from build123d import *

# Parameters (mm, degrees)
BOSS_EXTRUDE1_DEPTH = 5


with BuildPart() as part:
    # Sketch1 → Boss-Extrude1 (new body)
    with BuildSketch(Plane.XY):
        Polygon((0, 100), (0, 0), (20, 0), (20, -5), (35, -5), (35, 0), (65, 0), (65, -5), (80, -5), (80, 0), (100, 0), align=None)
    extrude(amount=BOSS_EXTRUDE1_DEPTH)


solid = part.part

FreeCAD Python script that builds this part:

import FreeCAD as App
import Part
import Sketcher
from FreeCAD import Vector
Q = App.Units.Quantity

doc = App.newDocument("Part")
body = doc.addObject("PartDesign::Body", "Body")

# Sketch on XY plane
sketch1 = body.newObject("Sketcher::SketchObject", "Sketch")
sketch1.AttachmentSupport = (doc.getObject("XY_Plane"), [""])
sketch1.MapMode = "FlatFace"
sketch1.addGeometry([
    Part.LineSegment(Vector(0, 100, 0), Vector(0, 0, 0)),  # 0
    Part.LineSegment(Vector(0, 0, 0), Vector(20, 0, 0)),  # 1
    Part.LineSegment(Vector(20, 0, 0), Vector(20, -5, 0)),  # 2
    Part.LineSegment(Vector(20, -5, 0), Vector(35, -5, 0)),  # 3
    Part.LineSegment(Vector(35, -5, 0), Vector(35, 0, 0)),  # 4
    Part.LineSegment(Vector(35, 0, 0), Vector(65, 0, 0)),  # 5
    Part.LineSegment(Vector(65, 0, 0), Vector(65, -5, 0)),  # 6
    Part.LineSegment(Vector(65, -5, 0), Vector(80, -5, 0)),  # 7
    Part.LineSegment(Vector(80, -5, 0), Vector(80, 0, 0)),  # 8
    Part.LineSegment(Vector(80, 0, 0), Vector(100, 0, 0)),  # 9
    Part.LineSegment(Vector(100, 0, 0), Vector(0, 100, 0)),  # 10
], False)
sketch1.addConstraint([
    Sketcher.Constraint("Coincident", 0, 2, 1, 1),
    Sketcher.Constraint("Coincident", 1, 2, 2, 1),
    Sketcher.Constraint("Coincident", 2, 2, 3, 1),
    Sketcher.Constraint("Coincident", 3, 2, 4, 1),
    Sketcher.Constraint("Coincident", 4, 2, 5, 1),
    Sketcher.Constraint("Coincident", 5, 2, 6, 1),
    Sketcher.Constraint("Coincident", 6, 2, 7, 1),
    Sketcher.Constraint("Coincident", 7, 2, 8, 1),
    Sketcher.Constraint("Coincident", 8, 2, 9, 1),
    Sketcher.Constraint("Coincident", 9, 2, 10, 1),
    Sketcher.Constraint("Coincident", 10, 2, 0, 1),
    Sketcher.Constraint("Vertical", 0),
    Sketcher.Constraint("Horizontal", 1),
    Sketcher.Constraint("Vertical", 2),
    Sketcher.Constraint("Horizontal", 3),
    Sketcher.Constraint("Vertical", 4),
    Sketcher.Constraint("Horizontal", 5),
    Sketcher.Constraint("Vertical", 6),
    Sketcher.Constraint("Horizontal", 7),
    Sketcher.Constraint("Vertical", 8),
    Sketcher.Constraint("Horizontal", 9),
    Sketcher.Constraint("Coincident", 0, 2, -1, 1),
    Sketcher.Constraint("PointOnObject", 4, 2, -1),
    Sketcher.Constraint("PointOnObject", 8, 2, -1),
    Sketcher.Constraint("Horizontal", 3, 2, 6, 2),
    Sketcher.Constraint("Equal", 3, 7),
    Sketcher.Constraint("Equal", 1, 9),
    Sketcher.Constraint("DistanceX", 1, 1, 1, 2, Q("20 mm")),
    Sketcher.Constraint("DistanceX", 3, 1, 3, 2, Q("15 mm")),
    Sketcher.Constraint("DistanceX", 5, 1, 5, 2, Q("30 mm")),
    Sketcher.Constraint("DistanceY", 0, 2, 0, 1, Q("100 mm")),
    Sketcher.Constraint("DistanceY", 2, 2, 2, 1, Q("5 mm")),
])
pad1 = body.newObject("PartDesign::Pad", "Pad")
pad1.Profile = sketch1
pad1.Length = 5

doc.recompute()
